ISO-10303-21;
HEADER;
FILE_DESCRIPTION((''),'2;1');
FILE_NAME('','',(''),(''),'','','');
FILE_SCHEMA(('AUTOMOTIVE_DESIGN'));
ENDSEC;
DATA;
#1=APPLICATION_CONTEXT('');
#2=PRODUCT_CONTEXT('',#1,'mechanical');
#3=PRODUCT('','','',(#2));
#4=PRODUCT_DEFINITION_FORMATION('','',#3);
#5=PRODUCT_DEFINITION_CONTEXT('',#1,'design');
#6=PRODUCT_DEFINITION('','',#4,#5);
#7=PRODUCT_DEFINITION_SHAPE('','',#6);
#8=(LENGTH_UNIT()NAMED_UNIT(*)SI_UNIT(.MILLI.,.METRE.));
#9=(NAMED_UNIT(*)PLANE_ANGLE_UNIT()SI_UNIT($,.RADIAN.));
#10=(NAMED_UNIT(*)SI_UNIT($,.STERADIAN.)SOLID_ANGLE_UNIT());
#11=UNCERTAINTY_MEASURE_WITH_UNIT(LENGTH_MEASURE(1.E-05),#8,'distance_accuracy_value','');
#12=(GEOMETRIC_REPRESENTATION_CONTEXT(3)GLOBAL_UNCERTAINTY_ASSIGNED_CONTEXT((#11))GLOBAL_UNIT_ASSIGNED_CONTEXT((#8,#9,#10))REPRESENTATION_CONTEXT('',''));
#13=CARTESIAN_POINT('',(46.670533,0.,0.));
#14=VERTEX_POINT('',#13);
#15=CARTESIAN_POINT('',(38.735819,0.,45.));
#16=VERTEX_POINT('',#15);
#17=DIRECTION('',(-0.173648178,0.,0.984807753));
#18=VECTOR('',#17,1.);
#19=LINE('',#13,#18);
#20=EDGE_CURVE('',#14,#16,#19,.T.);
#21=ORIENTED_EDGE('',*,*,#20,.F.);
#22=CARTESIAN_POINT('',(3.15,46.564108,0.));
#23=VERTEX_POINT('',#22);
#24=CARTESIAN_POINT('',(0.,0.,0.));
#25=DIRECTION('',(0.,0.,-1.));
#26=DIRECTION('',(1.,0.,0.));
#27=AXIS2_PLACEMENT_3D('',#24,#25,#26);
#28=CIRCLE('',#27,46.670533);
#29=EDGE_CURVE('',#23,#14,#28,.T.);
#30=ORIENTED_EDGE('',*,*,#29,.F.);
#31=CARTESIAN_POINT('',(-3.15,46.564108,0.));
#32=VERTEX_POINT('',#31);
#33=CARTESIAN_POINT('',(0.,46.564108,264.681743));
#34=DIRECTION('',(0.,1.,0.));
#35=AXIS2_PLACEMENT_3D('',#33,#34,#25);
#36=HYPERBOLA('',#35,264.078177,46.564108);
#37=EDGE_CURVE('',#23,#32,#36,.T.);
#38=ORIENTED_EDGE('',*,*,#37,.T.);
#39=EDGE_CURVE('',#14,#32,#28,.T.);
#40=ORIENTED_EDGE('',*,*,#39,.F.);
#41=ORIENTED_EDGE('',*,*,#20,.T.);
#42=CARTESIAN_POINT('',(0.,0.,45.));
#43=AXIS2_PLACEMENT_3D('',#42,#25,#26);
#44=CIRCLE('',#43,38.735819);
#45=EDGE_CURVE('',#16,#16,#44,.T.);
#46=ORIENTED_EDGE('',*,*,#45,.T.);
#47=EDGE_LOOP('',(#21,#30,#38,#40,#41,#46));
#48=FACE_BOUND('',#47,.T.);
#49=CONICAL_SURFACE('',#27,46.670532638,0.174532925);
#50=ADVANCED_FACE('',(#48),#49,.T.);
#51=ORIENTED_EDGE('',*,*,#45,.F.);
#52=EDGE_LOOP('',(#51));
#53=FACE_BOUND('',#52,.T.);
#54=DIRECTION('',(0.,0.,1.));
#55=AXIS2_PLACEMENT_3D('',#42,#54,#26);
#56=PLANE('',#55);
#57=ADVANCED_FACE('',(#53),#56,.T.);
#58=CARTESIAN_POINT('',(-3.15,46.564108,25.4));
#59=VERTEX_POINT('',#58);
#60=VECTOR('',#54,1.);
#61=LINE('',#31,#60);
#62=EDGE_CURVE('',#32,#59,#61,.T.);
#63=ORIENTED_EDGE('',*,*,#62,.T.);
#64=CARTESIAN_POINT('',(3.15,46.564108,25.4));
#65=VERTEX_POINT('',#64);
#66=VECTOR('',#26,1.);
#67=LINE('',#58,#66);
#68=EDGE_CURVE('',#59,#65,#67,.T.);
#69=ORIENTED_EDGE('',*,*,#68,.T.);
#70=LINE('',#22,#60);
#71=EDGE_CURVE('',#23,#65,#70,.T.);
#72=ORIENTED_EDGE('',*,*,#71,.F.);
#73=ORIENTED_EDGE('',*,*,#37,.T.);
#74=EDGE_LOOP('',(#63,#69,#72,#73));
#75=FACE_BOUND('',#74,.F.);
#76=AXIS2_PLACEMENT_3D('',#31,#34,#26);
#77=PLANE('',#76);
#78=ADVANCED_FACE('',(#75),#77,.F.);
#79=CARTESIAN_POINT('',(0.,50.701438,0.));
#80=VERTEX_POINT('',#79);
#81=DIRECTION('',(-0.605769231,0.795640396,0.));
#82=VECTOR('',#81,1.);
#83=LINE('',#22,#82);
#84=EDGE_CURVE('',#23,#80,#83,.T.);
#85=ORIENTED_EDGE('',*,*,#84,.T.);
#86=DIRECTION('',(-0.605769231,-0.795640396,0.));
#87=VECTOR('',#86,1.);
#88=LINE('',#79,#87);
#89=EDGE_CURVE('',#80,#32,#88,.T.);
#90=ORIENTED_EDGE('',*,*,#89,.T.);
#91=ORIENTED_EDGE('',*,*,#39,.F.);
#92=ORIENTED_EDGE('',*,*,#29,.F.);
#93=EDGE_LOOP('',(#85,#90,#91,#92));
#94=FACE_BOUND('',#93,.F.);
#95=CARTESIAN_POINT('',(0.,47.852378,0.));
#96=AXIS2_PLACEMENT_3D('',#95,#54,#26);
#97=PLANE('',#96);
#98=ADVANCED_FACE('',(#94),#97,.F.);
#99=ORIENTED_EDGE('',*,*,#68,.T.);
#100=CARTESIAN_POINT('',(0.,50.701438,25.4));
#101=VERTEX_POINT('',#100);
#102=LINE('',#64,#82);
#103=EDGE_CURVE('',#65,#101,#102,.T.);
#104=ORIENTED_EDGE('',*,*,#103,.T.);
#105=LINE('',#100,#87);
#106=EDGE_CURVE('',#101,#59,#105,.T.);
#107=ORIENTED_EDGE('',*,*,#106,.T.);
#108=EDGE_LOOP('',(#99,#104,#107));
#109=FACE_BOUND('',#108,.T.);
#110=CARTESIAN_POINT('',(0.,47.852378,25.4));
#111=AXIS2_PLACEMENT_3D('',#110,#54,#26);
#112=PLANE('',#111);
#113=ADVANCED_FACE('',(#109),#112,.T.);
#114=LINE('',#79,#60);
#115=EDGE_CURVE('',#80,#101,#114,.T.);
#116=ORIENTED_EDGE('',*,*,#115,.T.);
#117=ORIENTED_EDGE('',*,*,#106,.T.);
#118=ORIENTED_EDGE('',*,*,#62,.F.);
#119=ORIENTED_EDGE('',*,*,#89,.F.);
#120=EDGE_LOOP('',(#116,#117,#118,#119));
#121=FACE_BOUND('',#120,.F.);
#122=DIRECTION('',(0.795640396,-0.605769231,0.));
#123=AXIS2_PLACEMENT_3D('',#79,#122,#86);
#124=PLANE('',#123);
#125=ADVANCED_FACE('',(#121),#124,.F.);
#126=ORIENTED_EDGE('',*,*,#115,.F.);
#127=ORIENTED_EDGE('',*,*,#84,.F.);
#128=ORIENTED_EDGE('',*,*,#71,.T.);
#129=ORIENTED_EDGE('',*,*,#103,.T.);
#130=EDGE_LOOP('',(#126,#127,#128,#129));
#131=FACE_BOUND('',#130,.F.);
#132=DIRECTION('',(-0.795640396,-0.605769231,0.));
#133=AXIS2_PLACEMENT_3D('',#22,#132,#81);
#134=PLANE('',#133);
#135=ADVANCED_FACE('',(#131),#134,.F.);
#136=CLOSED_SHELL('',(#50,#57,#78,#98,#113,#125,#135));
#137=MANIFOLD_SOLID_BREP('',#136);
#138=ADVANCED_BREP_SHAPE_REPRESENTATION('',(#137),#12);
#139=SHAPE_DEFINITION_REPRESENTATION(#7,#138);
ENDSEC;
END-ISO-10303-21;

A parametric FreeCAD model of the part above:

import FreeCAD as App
import Part
import Sketcher


def add_polygon(sketch, points):
    """Adds a closed chain of lines whose ends are joined by coincident constraints."""
    first, n = sketch.GeometryCount, len(points)
    for a, b in zip(points, points[1:] + points[:1]):
        sketch.addGeometry(Part.LineSegment(App.Vector(*a, 0), App.Vector(*b, 0)), False)
    for i in range(n):
        sketch.addConstraint(Sketcher.Constraint("Coincident", first + i, 2, first + (i + 1) % n, 1))

doc = App.newDocument("Part")
body = doc.addObject("PartDesign::Body", "Body")

# Sketch on XY plane
sketch1 = body.newObject("Sketcher::SketchObject", "Sketch")
sketch1.AttachmentSupport = (doc.getObject("XY_Plane"), [""])
sketch1.MapMode = "FlatFace"
sketch1.addGeometry(Part.Circle(App.Vector(0, 0, 0), App.Vector(0, 0, 1), 47), False)
sketch1.addConstraint([
    Sketcher.Constraint("Coincident", 0, 3, -1, 1),
    Sketcher.Constraint("Diameter", 0, 93.341065),
])
pad1 = body.newObject("PartDesign::Pad", "Pad")
pad1.Profile = sketch1
pad1.Length = 45
pad1.TaperAngle = -10

# Sketch on XY plane
sketch2 = body.newObject("Sketcher::SketchObject", "Sketch001")
sketch2.AttachmentSupport = (doc.getObject("XY_Plane"), [""])
sketch2.MapMode = "FlatFace"
add_polygon(sketch2, [(0, 51), (-3, 47), (3, 47)])  # lines 0-2
sketch2.addConstraint([
    Sketcher.Constraint("Horizontal", 1),
    Sketcher.Constraint("PointOnObject", 2, 2, -2),
    Sketcher.Constraint("Equal", 0, 2),
    Sketcher.Constraint("DistanceX", 1, 1, 1, 2, 6.3),
    Sketcher.Constraint("Distance", 0, 5.2),
    Sketcher.Constraint("DistanceY", -1, 1, 0, 2, 46.564108),
])
pad2 = body.newObject("PartDesign::Pad", "Pad001")
pad2.Profile = sketch2
pad2.Length = 25.4

doc.recompute()
